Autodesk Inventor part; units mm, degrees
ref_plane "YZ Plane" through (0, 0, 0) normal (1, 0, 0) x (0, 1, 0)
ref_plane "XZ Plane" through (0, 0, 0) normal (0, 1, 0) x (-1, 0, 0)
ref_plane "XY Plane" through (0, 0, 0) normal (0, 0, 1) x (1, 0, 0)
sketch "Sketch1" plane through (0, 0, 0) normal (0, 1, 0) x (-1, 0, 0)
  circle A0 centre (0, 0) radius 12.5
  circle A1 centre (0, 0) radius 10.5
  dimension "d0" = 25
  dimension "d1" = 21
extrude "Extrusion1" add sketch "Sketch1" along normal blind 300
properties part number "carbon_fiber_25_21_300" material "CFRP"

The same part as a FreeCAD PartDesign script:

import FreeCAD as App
import Part
import Sketcher

V = App.Vector

doc = App.newDocument("Part")
body = doc.addObject("PartDesign::Body", "Body")

# Sketch on XZ plane
sketch1 = body.newObject("Sketcher::SketchObject", "Sketch")
sketch1.AttachmentSupport = (doc.getObject("XZ_Plane"), [""])
sketch1.MapMode = "FlatFace"
sketch1.addGeometry(Part.Circle(V(0, 0, 0), V(0, 0, 1), 12.5), False)
sketch1.addGeometry(Part.Circle(V(0, 0, 0), V(0, 0, 1), 10.5), False)
sketch1.addConstraint(Sketcher.Constraint("Coincident", 0, 3, -1, 1))
sketch1.addConstraint(Sketcher.Constraint("Coincident", 1, 3, -1, 1))
sketch1.addConstraint(Sketcher.Constraint("Diameter", 0, 25.0))
sketch1.addConstraint(Sketcher.Constraint("Diameter", 1, 21.0))
pad1 = body.newObject("PartDesign::Pad", "Pad")
pad1.Profile = sketch1
pad1.Length = 300
pad1.Reversed = True

doc.recompute()
